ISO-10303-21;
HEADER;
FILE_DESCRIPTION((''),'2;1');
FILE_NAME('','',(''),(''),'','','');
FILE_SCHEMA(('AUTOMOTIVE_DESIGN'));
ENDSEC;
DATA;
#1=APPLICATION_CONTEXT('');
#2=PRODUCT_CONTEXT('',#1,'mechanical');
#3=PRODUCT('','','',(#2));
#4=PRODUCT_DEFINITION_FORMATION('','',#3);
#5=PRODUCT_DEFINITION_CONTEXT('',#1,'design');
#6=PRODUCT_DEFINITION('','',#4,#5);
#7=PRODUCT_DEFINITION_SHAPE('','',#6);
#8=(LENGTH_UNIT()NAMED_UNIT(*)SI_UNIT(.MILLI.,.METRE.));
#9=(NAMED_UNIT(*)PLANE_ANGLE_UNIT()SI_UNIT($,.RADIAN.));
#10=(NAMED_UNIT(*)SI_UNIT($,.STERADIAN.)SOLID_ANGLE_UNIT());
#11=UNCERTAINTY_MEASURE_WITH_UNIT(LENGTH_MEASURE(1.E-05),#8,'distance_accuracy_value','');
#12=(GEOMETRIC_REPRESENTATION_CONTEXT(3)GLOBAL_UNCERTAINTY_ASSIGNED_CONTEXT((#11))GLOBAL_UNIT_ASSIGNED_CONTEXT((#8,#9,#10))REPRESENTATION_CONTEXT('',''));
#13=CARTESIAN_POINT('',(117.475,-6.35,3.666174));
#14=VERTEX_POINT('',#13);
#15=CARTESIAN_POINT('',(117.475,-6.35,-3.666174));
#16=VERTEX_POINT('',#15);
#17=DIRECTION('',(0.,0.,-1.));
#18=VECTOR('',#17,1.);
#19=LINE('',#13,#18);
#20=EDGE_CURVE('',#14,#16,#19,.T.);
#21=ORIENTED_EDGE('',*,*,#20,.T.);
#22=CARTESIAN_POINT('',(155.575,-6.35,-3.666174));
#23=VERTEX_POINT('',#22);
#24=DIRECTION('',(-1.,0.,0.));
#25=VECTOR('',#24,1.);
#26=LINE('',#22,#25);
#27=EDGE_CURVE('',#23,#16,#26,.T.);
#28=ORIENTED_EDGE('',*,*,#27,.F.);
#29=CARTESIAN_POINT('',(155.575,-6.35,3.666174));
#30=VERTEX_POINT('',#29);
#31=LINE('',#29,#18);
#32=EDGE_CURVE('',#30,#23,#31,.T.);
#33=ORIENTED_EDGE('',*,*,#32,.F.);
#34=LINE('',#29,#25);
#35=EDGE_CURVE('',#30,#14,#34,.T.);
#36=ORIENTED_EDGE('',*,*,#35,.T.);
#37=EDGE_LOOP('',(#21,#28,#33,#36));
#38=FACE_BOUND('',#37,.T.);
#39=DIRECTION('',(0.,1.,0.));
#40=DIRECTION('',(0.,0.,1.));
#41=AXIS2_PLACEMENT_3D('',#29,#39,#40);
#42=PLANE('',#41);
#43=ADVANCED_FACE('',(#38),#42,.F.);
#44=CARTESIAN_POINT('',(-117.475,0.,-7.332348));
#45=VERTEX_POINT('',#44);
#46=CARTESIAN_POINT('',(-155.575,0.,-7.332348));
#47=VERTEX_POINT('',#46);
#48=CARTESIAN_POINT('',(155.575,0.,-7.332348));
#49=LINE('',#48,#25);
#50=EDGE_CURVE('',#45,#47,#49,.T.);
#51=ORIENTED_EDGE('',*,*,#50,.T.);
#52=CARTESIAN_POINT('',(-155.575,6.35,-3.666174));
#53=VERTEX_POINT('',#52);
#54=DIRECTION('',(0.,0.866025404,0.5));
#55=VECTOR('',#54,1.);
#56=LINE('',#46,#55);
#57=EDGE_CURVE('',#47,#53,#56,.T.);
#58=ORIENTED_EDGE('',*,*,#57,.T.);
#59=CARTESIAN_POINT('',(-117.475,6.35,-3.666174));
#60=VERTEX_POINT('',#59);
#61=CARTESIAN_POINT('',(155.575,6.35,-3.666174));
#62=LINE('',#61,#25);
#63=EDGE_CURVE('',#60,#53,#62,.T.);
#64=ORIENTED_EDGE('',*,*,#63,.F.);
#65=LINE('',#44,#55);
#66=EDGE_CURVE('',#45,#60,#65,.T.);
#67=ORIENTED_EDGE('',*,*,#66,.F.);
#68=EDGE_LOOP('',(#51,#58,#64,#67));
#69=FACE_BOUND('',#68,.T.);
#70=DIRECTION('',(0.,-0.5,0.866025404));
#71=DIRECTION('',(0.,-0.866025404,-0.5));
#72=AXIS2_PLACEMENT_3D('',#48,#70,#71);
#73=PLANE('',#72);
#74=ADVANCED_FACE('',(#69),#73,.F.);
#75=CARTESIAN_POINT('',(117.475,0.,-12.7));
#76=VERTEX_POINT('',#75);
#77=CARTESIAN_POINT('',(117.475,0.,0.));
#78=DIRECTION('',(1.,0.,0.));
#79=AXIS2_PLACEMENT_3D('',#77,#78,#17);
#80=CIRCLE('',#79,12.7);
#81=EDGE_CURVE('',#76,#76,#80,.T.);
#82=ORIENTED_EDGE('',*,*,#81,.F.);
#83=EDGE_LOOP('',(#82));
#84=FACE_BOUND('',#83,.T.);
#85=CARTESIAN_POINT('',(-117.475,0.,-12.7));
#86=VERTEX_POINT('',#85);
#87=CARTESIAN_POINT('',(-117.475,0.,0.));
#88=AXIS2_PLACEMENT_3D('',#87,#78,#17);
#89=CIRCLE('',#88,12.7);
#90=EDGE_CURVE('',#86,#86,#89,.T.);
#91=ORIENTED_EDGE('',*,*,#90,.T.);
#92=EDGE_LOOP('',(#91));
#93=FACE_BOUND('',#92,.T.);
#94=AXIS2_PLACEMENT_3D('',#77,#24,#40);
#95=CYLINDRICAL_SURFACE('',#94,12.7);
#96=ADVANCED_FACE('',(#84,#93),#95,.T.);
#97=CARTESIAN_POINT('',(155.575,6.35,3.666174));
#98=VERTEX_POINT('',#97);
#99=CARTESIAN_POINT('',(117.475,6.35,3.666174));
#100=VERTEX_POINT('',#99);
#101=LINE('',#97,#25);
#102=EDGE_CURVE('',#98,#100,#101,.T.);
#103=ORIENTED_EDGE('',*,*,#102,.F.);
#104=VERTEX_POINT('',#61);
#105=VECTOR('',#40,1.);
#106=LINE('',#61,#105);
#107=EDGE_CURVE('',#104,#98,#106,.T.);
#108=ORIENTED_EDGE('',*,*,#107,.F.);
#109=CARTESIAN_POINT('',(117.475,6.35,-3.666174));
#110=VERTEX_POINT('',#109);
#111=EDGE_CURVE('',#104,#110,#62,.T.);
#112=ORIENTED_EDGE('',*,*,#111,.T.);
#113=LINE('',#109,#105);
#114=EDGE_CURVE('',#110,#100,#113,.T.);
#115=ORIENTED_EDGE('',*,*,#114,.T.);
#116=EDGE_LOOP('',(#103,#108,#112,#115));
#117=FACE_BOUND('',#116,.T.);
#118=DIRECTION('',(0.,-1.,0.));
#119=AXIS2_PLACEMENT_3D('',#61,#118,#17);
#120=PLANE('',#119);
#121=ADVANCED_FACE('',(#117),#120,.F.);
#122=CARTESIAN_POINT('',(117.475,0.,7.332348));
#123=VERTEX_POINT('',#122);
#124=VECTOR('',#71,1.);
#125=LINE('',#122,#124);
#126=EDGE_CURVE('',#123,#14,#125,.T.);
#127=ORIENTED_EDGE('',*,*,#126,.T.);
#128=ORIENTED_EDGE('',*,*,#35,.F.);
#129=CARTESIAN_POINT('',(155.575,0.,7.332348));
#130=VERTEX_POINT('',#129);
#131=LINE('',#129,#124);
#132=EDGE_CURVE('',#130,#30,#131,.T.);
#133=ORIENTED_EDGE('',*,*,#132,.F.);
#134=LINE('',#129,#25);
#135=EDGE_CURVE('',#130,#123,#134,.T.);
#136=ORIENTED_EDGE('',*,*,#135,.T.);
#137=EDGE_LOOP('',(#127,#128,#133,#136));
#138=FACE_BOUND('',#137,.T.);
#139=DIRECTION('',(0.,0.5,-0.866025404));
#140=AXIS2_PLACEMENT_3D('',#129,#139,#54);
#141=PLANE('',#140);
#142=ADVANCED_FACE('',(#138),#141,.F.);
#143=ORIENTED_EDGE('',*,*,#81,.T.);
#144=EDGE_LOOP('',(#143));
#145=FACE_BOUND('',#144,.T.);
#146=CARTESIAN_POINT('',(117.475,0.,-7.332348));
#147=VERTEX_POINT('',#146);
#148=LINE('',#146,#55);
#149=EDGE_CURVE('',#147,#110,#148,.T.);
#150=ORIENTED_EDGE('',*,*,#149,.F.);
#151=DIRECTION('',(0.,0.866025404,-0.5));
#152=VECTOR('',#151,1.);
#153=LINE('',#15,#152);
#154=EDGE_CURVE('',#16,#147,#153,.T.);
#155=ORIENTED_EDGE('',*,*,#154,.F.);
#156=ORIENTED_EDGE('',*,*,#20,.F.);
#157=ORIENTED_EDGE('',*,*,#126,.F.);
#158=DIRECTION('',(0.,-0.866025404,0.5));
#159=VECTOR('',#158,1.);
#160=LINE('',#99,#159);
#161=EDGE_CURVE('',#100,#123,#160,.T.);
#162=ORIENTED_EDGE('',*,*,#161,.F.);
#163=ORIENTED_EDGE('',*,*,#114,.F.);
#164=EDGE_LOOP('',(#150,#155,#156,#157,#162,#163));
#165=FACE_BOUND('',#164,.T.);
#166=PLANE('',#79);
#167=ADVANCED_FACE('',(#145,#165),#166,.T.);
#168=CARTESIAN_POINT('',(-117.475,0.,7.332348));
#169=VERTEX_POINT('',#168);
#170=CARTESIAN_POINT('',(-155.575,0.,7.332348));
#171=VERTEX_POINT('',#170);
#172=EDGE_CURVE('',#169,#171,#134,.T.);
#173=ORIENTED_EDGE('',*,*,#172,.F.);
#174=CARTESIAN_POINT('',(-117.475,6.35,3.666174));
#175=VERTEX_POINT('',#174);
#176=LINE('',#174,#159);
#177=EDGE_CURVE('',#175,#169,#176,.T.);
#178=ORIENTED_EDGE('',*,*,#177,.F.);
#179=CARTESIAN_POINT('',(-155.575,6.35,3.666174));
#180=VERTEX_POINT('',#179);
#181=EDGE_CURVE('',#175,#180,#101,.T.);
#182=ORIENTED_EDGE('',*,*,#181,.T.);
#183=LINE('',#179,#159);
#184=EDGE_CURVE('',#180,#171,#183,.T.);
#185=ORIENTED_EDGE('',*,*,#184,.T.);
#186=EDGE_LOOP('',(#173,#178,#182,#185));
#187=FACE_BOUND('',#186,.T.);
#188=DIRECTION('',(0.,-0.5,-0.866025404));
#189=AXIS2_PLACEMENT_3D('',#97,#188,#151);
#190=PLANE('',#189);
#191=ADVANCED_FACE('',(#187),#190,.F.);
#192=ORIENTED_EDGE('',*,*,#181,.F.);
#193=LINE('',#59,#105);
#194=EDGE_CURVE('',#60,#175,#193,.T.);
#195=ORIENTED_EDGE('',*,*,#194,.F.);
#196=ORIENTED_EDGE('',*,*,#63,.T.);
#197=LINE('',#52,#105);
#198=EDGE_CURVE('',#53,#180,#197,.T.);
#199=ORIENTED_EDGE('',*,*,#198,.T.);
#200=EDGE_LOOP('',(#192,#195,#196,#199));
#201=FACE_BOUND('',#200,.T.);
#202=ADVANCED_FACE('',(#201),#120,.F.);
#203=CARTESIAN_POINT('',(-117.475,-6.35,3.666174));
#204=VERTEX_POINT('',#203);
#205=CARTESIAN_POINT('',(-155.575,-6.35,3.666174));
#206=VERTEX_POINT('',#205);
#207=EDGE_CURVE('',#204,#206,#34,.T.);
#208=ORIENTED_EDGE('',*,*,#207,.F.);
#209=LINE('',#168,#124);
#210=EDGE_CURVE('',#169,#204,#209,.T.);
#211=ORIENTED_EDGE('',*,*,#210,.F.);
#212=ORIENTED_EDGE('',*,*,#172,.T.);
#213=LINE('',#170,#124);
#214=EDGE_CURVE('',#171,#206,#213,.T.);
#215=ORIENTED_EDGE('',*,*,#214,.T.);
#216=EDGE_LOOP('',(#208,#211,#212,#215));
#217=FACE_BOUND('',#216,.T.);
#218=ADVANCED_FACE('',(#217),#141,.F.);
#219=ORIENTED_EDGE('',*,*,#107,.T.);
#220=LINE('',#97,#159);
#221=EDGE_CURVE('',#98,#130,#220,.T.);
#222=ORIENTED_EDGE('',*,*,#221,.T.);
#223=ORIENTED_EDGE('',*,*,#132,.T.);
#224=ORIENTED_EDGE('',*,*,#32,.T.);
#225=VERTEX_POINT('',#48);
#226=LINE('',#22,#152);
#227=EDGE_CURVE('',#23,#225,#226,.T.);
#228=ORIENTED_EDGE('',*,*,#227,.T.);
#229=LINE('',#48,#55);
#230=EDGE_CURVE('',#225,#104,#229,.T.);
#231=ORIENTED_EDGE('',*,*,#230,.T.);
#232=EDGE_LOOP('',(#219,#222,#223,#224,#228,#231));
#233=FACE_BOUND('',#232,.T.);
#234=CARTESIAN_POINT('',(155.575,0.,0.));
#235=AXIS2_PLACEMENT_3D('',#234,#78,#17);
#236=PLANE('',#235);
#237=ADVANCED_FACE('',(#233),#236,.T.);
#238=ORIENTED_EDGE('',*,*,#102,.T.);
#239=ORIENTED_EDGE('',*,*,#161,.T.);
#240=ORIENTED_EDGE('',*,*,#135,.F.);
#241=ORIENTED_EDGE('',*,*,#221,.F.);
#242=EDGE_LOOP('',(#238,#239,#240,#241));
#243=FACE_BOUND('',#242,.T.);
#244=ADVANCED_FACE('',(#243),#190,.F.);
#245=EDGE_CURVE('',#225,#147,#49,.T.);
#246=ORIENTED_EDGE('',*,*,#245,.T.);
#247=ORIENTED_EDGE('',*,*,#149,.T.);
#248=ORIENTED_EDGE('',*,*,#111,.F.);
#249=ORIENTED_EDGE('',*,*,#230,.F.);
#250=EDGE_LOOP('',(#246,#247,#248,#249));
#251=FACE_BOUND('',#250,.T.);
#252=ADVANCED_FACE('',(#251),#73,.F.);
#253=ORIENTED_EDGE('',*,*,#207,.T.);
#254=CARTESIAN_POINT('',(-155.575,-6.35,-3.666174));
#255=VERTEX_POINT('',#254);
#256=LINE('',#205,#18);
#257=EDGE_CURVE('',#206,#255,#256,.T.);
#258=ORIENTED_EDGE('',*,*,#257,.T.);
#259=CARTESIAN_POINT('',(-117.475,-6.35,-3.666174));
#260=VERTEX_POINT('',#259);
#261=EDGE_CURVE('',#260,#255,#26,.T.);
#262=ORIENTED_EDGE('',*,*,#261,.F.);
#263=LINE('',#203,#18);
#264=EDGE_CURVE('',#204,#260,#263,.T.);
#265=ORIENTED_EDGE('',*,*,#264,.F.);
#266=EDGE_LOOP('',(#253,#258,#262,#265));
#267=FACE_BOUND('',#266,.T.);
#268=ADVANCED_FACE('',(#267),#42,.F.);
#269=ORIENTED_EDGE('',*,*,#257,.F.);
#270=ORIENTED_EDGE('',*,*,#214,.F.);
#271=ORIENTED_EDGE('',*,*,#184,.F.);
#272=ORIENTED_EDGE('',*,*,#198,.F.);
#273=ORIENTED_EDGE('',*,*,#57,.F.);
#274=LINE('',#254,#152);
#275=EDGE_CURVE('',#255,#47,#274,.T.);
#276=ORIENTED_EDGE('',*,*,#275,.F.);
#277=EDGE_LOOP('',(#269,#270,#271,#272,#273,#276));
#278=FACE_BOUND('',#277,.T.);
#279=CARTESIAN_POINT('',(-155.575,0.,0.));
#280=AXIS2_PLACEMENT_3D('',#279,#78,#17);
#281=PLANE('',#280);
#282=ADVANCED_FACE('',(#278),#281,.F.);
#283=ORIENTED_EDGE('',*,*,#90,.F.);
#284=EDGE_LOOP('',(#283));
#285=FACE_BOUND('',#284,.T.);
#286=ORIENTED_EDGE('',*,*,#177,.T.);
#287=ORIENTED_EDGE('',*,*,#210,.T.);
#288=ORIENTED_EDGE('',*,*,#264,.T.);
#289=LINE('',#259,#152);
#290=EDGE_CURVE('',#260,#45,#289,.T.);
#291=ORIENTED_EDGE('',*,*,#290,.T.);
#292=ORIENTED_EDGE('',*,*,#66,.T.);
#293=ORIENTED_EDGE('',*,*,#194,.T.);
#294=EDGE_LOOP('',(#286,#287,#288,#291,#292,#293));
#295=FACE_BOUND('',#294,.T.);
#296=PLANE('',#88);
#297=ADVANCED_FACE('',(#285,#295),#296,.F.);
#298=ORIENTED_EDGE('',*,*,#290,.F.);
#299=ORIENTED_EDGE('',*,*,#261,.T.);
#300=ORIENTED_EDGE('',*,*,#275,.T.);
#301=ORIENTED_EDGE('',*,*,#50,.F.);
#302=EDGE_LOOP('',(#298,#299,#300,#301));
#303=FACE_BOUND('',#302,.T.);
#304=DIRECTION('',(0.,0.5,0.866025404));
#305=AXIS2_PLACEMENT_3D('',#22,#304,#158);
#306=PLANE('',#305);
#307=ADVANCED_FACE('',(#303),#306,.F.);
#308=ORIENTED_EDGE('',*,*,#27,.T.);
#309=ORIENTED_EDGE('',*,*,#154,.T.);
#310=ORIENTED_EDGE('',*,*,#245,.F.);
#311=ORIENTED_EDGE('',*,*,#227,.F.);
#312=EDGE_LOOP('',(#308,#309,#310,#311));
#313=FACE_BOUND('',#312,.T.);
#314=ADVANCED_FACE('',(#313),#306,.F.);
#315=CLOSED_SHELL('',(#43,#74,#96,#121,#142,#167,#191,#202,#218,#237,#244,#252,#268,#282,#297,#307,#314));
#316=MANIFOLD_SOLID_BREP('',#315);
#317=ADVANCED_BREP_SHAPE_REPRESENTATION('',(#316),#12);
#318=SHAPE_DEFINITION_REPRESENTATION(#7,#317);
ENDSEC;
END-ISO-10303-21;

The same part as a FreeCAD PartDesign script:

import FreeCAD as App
import Part
import Sketcher

V = App.Vector
Q = App.Units.Quantity

doc = App.newDocument("Part")
body = doc.addObject("PartDesign::Body", "Body")

# Sketch on YZ plane
sketch1 = doc.addObject("Sketcher::SketchObject", "Sketch")
body.addObject(sketch1)
sketch1.AttachmentSupport = (doc.YZ_Plane, [""])
sketch1.MapMode = "FlatFace"
sketch1.addGeometry(Part.LineSegment(V(6.35, -3.666174, 0), V(6.35, 3.666174, 0)), False)
sketch1.addGeometry(Part.LineSegment(V(6.35, 3.666174, 0), V(0, 7.332348, 0)), False)
sketch1.addGeometry(Part.LineSegment(V(0, 7.332348, 0), V(-6.35, 3.666174, 0)), False)
sketch1.addGeometry(Part.LineSegment(V(-6.35, 3.666174, 0), V(-6.35, -3.666174, 0)), False)
sketch1.addGeometry(Part.LineSegment(V(-6.35, -3.666174, 0), V(0, -7.332348, 0)), False)
sketch1.addGeometry(Part.LineSegment(V(0, -7.332348, 0), V(6.35, -3.666174, 0)), False)
sketch1.addConstraint(Sketcher.Constraint("Coincident", 0, 2, 1, 1))
sketch1.addConstraint(Sketcher.Constraint("Coincident", 1, 2, 2, 1))
sketch1.addConstraint(Sketcher.Constraint("Coincident", 2, 2, 3, 1))
sketch1.addConstraint(Sketcher.Constraint("Coincident", 3, 2, 4, 1))
sketch1.addConstraint(Sketcher.Constraint("Coincident", 4, 2, 5, 1))
sketch1.addConstraint(Sketcher.Constraint("Coincident", 5, 2, 0, 1))
sketch1.addConstraint(Sketcher.Constraint("Vertical", 0))
sketch1.addConstraint(Sketcher.Constraint("Vertical", 3))
sketch1.addConstraint(Sketcher.Constraint("Symmetric", 0, 2, 3, 2, -1, 1))
sketch1.addConstraint(Sketcher.Constraint("Symmetric", 1, 2, 4, 2, -1, 1))
sketch1.addConstraint(Sketcher.Constraint("PointOnObject", 1, 2, -2))
sketch1.addConstraint(Sketcher.Constraint("Parallel", 2, 5))
sketch1.addConstraint(Sketcher.Constraint("Horizontal", 0, 2, 2, 2))
sketch1.addConstraint(Sketcher.Constraint("Angle", 1, Q("150 deg")))
sketch1.addConstraint(Sketcher.Constraint("DistanceX", 2, 2, 0, 2, Q("0.5 in")))
sketch1.addConstraint(Sketcher.Constraint("DistanceY", 0, 1, 0, 2, Q("7.332348 mm")))
pad1 = doc.addObject("PartDesign::Pad", "Pad")
body.addObject(pad1)
pad1.Profile = sketch1
pad1.Length = Q("12.25 in")
pad1.Midplane = True

# Sketch on YZ plane
sketch2 = doc.addObject("Sketcher::SketchObject", "Sketch001")
body.addObject(sketch2)
sketch2.AttachmentSupport = (doc.YZ_Plane, [""])
sketch2.MapMode = "FlatFace"
sketch2.addGeometry(Part.Circle(V(0, 0, 0), V(0, 0, 1), 12.7), False)
sketch2.addConstraint(Sketcher.Constraint("Coincident", 0, 3, -1, 1))
sketch2.addConstraint(Sketcher.Constraint("Diameter", 0, Q("1 in")))
pad2 = doc.addObject("PartDesign::Pad", "Pad001")
body.addObject(pad2)
pad2.Profile = sketch2
pad2.Length = Q("9.25 in")
pad2.Midplane = True

doc.recompute()
